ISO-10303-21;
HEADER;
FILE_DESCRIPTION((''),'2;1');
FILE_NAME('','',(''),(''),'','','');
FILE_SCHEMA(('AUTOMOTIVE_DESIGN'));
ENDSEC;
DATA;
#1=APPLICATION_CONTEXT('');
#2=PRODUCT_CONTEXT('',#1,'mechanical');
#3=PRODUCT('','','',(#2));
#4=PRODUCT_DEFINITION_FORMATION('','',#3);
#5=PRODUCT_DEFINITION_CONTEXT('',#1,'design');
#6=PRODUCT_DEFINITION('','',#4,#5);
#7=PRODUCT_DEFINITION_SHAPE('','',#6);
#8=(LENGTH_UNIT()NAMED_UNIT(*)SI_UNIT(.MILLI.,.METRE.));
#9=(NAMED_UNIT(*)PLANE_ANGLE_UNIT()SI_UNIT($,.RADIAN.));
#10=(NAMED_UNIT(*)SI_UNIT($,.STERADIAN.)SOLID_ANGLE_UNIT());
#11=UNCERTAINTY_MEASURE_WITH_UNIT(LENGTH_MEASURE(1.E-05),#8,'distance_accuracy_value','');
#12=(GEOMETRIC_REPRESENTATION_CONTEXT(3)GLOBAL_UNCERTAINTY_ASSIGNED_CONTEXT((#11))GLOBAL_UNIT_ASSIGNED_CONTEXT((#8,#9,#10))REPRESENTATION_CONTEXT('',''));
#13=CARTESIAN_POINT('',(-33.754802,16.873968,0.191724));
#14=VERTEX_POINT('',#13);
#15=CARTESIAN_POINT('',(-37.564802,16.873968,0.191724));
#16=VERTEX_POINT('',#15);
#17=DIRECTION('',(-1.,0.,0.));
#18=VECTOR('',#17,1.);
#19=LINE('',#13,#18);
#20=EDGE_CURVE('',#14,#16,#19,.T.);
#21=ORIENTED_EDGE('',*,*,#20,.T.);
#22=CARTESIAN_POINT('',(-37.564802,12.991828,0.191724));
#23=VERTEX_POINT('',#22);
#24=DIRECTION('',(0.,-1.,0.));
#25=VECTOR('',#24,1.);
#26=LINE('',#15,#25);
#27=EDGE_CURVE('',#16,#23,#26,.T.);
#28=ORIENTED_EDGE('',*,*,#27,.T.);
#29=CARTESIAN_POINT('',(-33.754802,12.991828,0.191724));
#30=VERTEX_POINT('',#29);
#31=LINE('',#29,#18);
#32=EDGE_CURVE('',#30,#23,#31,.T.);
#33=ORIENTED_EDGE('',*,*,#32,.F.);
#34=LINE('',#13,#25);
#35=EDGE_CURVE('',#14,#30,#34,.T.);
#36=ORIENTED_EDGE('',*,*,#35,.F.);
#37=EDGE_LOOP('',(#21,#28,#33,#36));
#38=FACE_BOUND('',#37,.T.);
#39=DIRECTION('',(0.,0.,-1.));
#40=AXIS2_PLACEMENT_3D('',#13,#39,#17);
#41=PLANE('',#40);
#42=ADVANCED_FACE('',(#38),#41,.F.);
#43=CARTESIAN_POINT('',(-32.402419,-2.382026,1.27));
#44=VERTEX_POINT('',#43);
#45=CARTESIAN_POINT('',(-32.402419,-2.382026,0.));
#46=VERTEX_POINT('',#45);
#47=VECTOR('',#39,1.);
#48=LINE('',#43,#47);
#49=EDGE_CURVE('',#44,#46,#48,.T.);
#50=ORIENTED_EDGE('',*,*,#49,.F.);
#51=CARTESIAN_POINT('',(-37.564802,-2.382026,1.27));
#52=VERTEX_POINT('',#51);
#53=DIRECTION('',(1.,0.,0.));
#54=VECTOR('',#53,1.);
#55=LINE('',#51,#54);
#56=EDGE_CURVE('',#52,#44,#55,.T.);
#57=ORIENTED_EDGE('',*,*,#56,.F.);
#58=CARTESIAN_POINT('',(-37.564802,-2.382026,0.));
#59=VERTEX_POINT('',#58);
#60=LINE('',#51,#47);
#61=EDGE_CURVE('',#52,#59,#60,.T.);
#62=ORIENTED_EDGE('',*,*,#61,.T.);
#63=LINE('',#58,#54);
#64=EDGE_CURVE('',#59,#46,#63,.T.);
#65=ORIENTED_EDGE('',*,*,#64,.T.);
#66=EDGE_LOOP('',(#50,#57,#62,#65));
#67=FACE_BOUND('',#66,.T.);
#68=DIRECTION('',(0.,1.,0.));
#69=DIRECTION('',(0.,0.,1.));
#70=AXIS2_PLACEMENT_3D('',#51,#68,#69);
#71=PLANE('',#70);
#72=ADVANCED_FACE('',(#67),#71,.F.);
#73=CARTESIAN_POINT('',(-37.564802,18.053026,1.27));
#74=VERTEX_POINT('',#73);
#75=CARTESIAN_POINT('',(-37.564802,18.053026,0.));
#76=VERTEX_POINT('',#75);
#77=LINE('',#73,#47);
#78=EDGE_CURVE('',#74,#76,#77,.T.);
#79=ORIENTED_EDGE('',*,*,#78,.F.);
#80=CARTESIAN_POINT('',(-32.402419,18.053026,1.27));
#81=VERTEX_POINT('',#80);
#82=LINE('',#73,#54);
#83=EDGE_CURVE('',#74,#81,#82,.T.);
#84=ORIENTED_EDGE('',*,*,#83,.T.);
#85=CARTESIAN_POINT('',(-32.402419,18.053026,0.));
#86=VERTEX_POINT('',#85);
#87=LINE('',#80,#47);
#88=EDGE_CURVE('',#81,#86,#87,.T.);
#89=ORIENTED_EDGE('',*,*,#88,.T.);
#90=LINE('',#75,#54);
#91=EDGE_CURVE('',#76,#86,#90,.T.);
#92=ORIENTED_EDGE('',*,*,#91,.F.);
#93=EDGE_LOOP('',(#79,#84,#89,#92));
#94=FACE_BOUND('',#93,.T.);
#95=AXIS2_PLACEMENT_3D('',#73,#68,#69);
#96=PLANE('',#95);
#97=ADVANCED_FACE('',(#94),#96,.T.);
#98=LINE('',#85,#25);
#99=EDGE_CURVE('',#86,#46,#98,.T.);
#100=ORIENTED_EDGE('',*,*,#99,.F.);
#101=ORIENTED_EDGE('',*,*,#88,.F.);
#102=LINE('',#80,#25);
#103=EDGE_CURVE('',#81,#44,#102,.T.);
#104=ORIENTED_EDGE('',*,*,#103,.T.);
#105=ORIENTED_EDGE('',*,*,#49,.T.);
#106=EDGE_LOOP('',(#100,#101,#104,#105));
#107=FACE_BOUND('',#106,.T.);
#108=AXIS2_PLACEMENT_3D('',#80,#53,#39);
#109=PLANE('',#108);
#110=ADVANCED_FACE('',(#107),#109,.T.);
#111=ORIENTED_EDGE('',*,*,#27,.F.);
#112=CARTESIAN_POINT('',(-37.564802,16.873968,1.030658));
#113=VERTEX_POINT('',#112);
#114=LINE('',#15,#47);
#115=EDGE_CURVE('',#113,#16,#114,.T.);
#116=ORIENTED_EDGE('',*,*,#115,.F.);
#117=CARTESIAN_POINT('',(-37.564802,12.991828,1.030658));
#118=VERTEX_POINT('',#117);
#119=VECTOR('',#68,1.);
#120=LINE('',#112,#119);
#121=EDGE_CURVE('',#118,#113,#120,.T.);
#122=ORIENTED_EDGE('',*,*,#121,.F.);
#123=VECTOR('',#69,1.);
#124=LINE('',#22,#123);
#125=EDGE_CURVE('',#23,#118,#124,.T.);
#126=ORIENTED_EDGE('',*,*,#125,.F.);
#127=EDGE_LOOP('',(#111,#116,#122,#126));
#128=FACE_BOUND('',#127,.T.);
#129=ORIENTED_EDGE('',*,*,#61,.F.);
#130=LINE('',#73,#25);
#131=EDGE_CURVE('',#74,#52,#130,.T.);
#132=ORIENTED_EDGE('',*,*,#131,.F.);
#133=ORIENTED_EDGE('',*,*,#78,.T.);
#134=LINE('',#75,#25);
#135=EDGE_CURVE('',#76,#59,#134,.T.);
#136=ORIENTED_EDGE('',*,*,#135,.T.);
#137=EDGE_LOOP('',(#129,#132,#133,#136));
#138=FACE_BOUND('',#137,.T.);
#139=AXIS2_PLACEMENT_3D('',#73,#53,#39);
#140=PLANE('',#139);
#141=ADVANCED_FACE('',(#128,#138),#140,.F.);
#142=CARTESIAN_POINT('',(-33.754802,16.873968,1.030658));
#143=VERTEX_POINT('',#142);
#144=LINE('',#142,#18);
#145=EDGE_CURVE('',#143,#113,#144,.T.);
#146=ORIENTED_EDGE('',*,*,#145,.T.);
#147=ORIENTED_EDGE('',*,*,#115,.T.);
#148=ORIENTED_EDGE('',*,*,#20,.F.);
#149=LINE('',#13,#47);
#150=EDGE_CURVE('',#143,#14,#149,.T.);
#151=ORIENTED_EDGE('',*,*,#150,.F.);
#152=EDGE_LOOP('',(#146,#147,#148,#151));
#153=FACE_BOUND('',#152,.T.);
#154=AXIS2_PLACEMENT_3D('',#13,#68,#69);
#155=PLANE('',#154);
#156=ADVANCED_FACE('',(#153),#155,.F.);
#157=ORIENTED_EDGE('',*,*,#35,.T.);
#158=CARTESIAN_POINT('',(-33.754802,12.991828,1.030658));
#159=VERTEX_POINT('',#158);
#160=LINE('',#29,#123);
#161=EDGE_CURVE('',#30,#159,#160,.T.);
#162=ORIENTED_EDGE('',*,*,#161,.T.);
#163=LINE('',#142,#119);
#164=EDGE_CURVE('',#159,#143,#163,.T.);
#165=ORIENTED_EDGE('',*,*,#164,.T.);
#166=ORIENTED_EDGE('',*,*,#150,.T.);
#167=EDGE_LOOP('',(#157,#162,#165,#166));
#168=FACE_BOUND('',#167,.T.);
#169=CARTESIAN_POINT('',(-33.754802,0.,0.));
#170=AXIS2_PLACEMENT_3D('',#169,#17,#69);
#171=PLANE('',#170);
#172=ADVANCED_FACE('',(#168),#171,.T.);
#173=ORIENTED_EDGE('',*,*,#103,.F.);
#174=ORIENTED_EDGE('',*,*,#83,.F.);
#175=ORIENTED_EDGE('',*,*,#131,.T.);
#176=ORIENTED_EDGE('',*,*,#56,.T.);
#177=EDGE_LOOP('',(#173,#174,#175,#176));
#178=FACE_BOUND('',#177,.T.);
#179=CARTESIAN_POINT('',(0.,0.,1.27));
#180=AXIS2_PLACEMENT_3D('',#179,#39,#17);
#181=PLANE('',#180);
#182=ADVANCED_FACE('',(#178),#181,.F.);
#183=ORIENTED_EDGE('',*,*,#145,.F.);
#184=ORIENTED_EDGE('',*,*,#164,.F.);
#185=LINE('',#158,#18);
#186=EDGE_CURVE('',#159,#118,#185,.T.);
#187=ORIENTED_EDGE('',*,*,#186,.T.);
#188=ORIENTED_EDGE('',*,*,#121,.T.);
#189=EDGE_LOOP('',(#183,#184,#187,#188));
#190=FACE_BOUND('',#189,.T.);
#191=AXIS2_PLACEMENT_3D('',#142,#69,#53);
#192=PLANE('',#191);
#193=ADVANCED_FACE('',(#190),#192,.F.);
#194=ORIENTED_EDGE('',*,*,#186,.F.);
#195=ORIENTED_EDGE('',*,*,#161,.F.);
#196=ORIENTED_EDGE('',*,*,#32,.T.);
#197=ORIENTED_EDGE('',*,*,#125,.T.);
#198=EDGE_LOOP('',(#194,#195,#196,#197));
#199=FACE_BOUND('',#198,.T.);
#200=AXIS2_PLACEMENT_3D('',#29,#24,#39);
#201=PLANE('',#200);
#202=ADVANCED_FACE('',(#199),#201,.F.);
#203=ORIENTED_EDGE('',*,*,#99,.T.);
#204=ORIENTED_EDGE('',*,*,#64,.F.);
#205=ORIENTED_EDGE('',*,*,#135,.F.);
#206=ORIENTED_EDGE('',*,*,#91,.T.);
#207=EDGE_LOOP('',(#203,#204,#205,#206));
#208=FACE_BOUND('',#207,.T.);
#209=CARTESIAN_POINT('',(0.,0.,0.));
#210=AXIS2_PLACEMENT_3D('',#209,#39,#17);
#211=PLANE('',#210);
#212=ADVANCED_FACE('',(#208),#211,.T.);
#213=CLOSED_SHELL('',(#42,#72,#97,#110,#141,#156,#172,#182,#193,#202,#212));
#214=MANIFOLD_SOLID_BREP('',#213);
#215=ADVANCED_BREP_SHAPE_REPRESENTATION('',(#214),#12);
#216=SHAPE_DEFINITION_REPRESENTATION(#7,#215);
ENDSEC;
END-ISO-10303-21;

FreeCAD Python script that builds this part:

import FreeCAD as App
import Part
import Sketcher
from FreeCAD import Vector
Q = App.Units.Quantity

doc = App.newDocument("Part")
body = doc.addObject("PartDesign::Body", "Body")

sketch1 = body.newObject("Sketcher::SketchObject", "Sketch")
sketch1.AttachmentSupport = (doc.getObject("XY_Plane"), [""])
sketch1.MapMode = "FlatFace"
sketch1.addGeometry(Part.LineSegment(Vector(-37.564802, 18.053026, 0), Vector(-37.564802, -2.382026, 0)), False)
sketch1.addGeometry(Part.LineSegment(Vector(-37.564802, -2.382026, 0), Vector(-32.402419, -2.382026, 0)), False)
sketch1.addGeometry(Part.LineSegment(Vector(-32.402419, -2.382026, 0), Vector(-32.402419, 18.053026, 0)), False)
sketch1.addGeometry(Part.LineSegment(Vector(-32.402419, 18.053026, 0), Vector(-37.564802, 18.053026, 0)), False)
sketch1.addConstraint(Sketcher.Constraint("Coincident", 0, 2, 1, 1))
sketch1.addConstraint(Sketcher.Constraint("Coincident", 1, 2, 2, 1))
sketch1.addConstraint(Sketcher.Constraint("Coincident", 2, 2, 3, 1))
sketch1.addConstraint(Sketcher.Constraint("Coincident", 3, 2, 0, 1))
sketch1.addConstraint(Sketcher.Constraint("Vertical", 0))
sketch1.addConstraint(Sketcher.Constraint("Horizontal", 1))
sketch1.addConstraint(Sketcher.Constraint("Vertical", 2))
sketch1.addConstraint(Sketcher.Constraint("Horizontal", 3))
sketch1.addConstraint(Sketcher.Constraint("DistanceX", 0, 2, -1, 1, Q("37.564802 mm")))
sketch1.addConstraint(Sketcher.Constraint("DistanceX", 1, 1, 1, 2, Q("5.162383 mm")))
sketch1.addConstraint(Sketcher.Constraint("DistanceY", 0, 2, 0, 1, Q("20.435052 mm")))
sketch1.addConstraint(Sketcher.Constraint("DistanceY", 0, 2, -1, 1, Q("2.382026 mm")))
pad1 = body.newObject("PartDesign::Pad", "Pad")
pad1.Profile = sketch1
pad1.Length = Q("0.05 in")

sketch2 = body.newObject("Sketcher::SketchObject", "Sketch001")
sketch2.AttachmentSupport = (doc.getObject("YZ_Plane"), [""])
sketch2.MapMode = "FlatFace"
sketch2.AttachmentOffset = App.Placement(Vector(0, 0, -37.564802), App.Rotation())
sketch2.addGeometry(Part.LineSegment(Vector(16.873968, 0.191724, 0), Vector(12.991828, 0.191724, 0)), False)
sketch2.addGeometry(Part.LineSegment(Vector(12.991828, 0.191724, 0), Vector(12.991828, 1.030658, 0)), False)
sketch2.addGeometry(Part.LineSegment(Vector(12.991828, 1.030658, 0), Vector(16.873968, 1.030658, 0)), False)
sketch2.addGeometry(Part.LineSegment(Vector(16.873968, 1.030658, 0), Vector(16.873968, 0.191724, 0)), False)
sketch2.addConstraint(Sketcher.Constraint("Coincident", 0, 2, 1, 1))
sketch2.addConstraint(Sketcher.Constraint("Coincident", 1, 2, 2, 1))
sketch2.addConstraint(Sketcher.Constraint("Coincident", 2, 2, 3, 1))
sketch2.addConstraint(Sketcher.Constraint("Coincident", 3, 2, 0, 1))
sketch2.addConstraint(Sketcher.Constraint("Horizontal", 0))
sketch2.addConstraint(Sketcher.Constraint("Vertical", 1))
sketch2.addConstraint(Sketcher.Constraint("Horizontal", 2))
sketch2.addConstraint(Sketcher.Constraint("Vertical", 3))
sketch2.addConstraint(Sketcher.Constraint("DistanceX", 0, 2, 0, 1, Q("3.88214 mm")))
sketch2.addConstraint(Sketcher.Constraint("DistanceY", 1, 1, 1, 2, Q("0.838934 mm")))
sketch2.addConstraint(Sketcher.Constraint("DistanceY", -1, 1, 1, 2, Q("1.030658 mm")))
sketch2.addConstraint(Sketcher.Constraint("DistanceX", -1, 1, 2, 2, Q("16.873968 mm")))
pocket1 = body.newObject("PartDesign::Pocket", "Pocket")
pocket1.Profile = sketch2
pocket1.Length = Q("0.15 in")
pocket1.Reversed = True

doc.recompute()
